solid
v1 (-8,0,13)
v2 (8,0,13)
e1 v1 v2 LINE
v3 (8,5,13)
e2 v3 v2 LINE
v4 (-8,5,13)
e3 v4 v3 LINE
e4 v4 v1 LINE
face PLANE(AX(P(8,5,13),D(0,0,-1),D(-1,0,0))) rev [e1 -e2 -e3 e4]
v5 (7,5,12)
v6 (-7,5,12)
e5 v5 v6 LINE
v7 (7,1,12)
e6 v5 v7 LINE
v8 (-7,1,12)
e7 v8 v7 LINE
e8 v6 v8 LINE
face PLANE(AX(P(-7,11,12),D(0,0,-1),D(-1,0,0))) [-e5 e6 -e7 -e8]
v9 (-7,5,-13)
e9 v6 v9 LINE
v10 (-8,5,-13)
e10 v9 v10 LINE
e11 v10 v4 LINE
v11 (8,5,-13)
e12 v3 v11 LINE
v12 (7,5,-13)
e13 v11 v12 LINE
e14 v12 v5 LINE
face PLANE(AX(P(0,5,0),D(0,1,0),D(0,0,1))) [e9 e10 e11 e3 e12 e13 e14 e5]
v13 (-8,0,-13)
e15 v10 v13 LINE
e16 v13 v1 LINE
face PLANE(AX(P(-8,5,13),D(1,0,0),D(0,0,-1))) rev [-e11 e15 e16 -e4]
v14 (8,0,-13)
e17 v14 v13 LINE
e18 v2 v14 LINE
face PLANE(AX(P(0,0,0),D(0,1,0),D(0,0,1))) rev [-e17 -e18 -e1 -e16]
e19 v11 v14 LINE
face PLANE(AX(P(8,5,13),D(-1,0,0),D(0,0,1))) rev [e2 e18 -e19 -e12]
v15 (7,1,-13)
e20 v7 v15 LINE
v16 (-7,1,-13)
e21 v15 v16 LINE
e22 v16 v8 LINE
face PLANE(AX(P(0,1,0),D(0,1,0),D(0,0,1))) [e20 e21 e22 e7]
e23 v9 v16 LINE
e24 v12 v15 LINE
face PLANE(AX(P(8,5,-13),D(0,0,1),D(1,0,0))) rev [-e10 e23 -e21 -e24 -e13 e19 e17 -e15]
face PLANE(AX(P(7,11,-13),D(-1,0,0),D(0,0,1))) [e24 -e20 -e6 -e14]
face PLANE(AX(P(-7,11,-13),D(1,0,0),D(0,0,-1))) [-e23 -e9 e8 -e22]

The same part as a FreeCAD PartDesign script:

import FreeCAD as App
import Part
import Sketcher
Q = App.Units.Quantity

doc = App.newDocument("Part")
body = doc.addObject("PartDesign::Body", "Body")

sketch1 = body.newObject("Sketcher::SketchObject", "Sketch")
sketch1.AttachmentSupport = (doc.getObject("XZ_Plane"), [""])
sketch1.MapMode = "FlatFace"
sketch1.addGeometry(Part.LineSegment(App.Vector(-8, -13, 0), App.Vector(-8, 13, 0)), False)
sketch1.addGeometry(Part.LineSegment(App.Vector(-8, 13, 0), App.Vector(8, 13, 0)), False)
sketch1.addGeometry(Part.LineSegment(App.Vector(8, 13, 0), App.Vector(8, -13, 0)), False)
sketch1.addGeometry(Part.LineSegment(App.Vector(8, -13, 0), App.Vector(-8, -13, 0)), False)
sketch1.addConstraint(Sketcher.Constraint("Coincident", 0, 2, 1, 1))
sketch1.addConstraint(Sketcher.Constraint("Coincident", 1, 2, 2, 1))
sketch1.addConstraint(Sketcher.Constraint("Coincident", 2, 2, 3, 1))
sketch1.addConstraint(Sketcher.Constraint("Coincident", 3, 2, 0, 1))
sketch1.addConstraint(Sketcher.Constraint("Vertical", 0))
sketch1.addConstraint(Sketcher.Constraint("Horizontal", 1))
sketch1.addConstraint(Sketcher.Constraint("Vertical", 2))
sketch1.addConstraint(Sketcher.Constraint("Horizontal", 3))
sketch1.addConstraint(Sketcher.Constraint("Symmetric", 0, 2, 2, 2, -1, 1))
sketch1.addConstraint(Sketcher.Constraint("DistanceX", 1, 1, 1, 2, Q("16 mm")))
sketch1.addConstraint(Sketcher.Constraint("DistanceY", 0, 1, 0, 2, Q("26 mm")))
pad1 = body.newObject("PartDesign::Pad", "Pad")
pad1.Profile = sketch1
pad1.Length = 5
pad1.Reversed = True

sketch2 = body.newObject("Sketcher::SketchObject", "Sketch001")
sketch2.AttachmentSupport = (doc.getObject("XZ_Plane"), [""])
sketch2.MapMode = "FlatFace"
sketch2.AttachmentOffset = App.Placement(App.Vector(0, 0, -1), App.Rotation())
sketch2.addGeometry(Part.LineSegment(App.Vector(-7, -13, 0), App.Vector(-7, 12, 0)), False)
sketch2.addGeometry(Part.LineSegment(App.Vector(-7, 12, 0), App.Vector(7, 12, 0)), False)
sketch2.addGeometry(Part.LineSegment(App.Vector(7, 12, 0), App.Vector(7, -13, 0)), False)
sketch2.addGeometry(Part.LineSegment(App.Vector(7, -13, 0), App.Vector(-7, -13, 0)), False)
sketch2.addConstraint(Sketcher.Constraint("Coincident", 0, 2, 1, 1))
sketch2.addConstraint(Sketcher.Constraint("Coincident", 1, 2, 2, 1))
sketch2.addConstraint(Sketcher.Constraint("Coincident", 2, 2, 3, 1))
sketch2.addConstraint(Sketcher.Constraint("Coincident", 3, 2, 0, 1))
sketch2.addConstraint(Sketcher.Constraint("Vertical", 0))
sketch2.addConstraint(Sketcher.Constraint("Horizontal", 1))
sketch2.addConstraint(Sketcher.Constraint("Vertical", 2))
sketch2.addConstraint(Sketcher.Constraint("Horizontal", 3))
sketch2.addConstraint(Sketcher.Constraint("DistanceX", 1, 1, 1, 2, Q("14 mm")))
sketch2.addConstraint(Sketcher.Constraint("DistanceY", 0, 1, 0, 2, Q("25 mm")))
sketch2.addConstraint(Sketcher.Constraint("DistanceX", 0, 2, -1, 1, Q("7 mm")))
sketch2.addConstraint(Sketcher.Constraint("DistanceY", -1, 1, 0, 2, Q("12 mm")))
pocket1 = body.newObject("PartDesign::Pocket", "Pocket")
pocket1.Profile = sketch2
pocket1.Length = 10
body2 = doc.addObject("PartDesign::Body", "Body001")

sketch3 = body2.newObject("Sketcher::SketchObject", "Sketch002")
sketch3.AttachmentSupport = (doc.getObject("XZ_Plane001"), [""])
sketch3.MapMode = "FlatFace"
sketch3.AttachmentOffset = App.Placement(App.Vector(0, 0, -5), App.Rotation())
sketch3.addGeometry(Part.LineSegment(App.Vector(-8, -13, 0), App.Vector(-8, 13, 0)), False)
sketch3.addGeometry(Part.LineSegment(App.Vector(-8, 13, 0), App.Vector(8, 13, 0)), False)
sketch3.addGeometry(Part.LineSegment(App.Vector(8, 13, 0), App.Vector(8, -13, 0)), False)
sketch3.addGeometry(Part.LineSegment(App.Vector(8, -13, 0), App.Vector(-8, -13, 0)), False)
sketch3.addConstraint(Sketcher.Constraint("Coincident", 0, 2, 1, 1))
sketch3.addConstraint(Sketcher.Constraint("Coincident", 1, 2, 2, 1))
sketch3.addConstraint(Sketcher.Constraint("Coincident", 2, 2, 3, 1))
sketch3.addConstraint(Sketcher.Constraint("Coincident", 3, 2, 0, 1))
sketch3.addConstraint(Sketcher.Constraint("Vertical", 0))
sketch3.addConstraint(Sketcher.Constraint("Horizontal", 1))
sketch3.addConstraint(Sketcher.Constraint("Vertical", 2))
sketch3.addConstraint(Sketcher.Constraint("Horizontal", 3))
sketch3.addConstraint(Sketcher.Constraint("Symmetric", 0, 2, 2, 2, -1, 1))
sketch3.addConstraint(Sketcher.Constraint("DistanceX", 1, 1, 1, 2, Q("16 mm")))
sketch3.addConstraint(Sketcher.Constraint("DistanceY", 0, 1, 0, 2, Q("26 mm")))
pad2 = body2.newObject("PartDesign::Pad", "Pad001")
pad2.Profile = sketch3
pad2.Length = 1
pad2.Reversed = True

sketch4 = body2.newObject("Sketcher::SketchObject", "Sketch003")
sketch4.AttachmentSupport = (doc.getObject("XZ_Plane001"), [""])
sketch4.MapMode = "FlatFace"
sketch4.AttachmentOffset = App.Placement(App.Vector(0, 0, -6), App.Rotation())
sketch4.addGeometry(Part.LineSegment(App.Vector(-7, -7, 0), App.Vector(-7, 10, 0)), False)
sketch4.addGeometry(Part.LineSegment(App.Vector(-7, 10, 0), App.Vector(7, 10, 0)), False)
sketch4.addGeometry(Part.LineSegment(App.Vector(7, 10, 0), App.Vector(7, -7, 0)), False)
sketch4.addGeometry(Part.LineSegment(App.Vector(7, -7, 0), App.Vector(-7, -7, 0)), False)
sketch4.addConstraint(Sketcher.Constraint("Coincident", 0, 2, 1, 1))
sketch4.addConstraint(Sketcher.Constraint("Coincident", 1, 2, 2, 1))
sketch4.addConstraint(Sketcher.Constraint("Coincident", 2, 2, 3, 1))
sketch4.addConstraint(Sketcher.Constraint("Coincident", 3, 2, 0, 1))
sketch4.addConstraint(Sketcher.Constraint("Vertical", 0))
sketch4.addConstraint(Sketcher.Constraint("Horizontal", 1))
sketch4.addConstraint(Sketcher.Constraint("Vertical", 2))
sketch4.addConstraint(Sketcher.Constraint("Horizontal", 3))
sketch4.addConstraint(Sketcher.Constraint("DistanceX", 1, 1, 1, 2, Q("14 mm")))
sketch4.addConstraint(Sketcher.Constraint("DistanceY", 0, 1, 0, 2, Q("17 mm")))
sketch4.addConstraint(Sketcher.Constraint("DistanceX", 0, 2, -1, 1, Q("7 mm")))
sketch4.addConstraint(Sketcher.Constraint("DistanceY", -1, 1, 0, 2, Q("10 mm")))
pocket2 = body2.newObject("PartDesign::Pocket", "Pocket001")
pocket2.Profile = sketch4
pocket2.Length = 1
pocket2.Reversed = True

sketch5 = body2.newObject("Sketcher::SketchObject", "Sketch004")
sketch5.AttachmentSupport = (doc.getObject("XZ_Plane001"), [""])
sketch5.MapMode = "FlatFace"
sketch5.AttachmentOffset = App.Placement(App.Vector(0, 0, -6), App.Rotation())
sketch5.addGeometry(Part.LineSegment(App.Vector(-8, -13, 0), App.Vector(-8, 13, 0)), False)
sketch5.addGeometry(Part.LineSegment(App.Vector(-8, 13, 0), App.Vector(8, 13, 0)), False)
sketch5.addGeometry(Part.LineSegment(App.Vector(8, 13, 0), App.Vector(8, -13, 0)), False)
sketch5.addGeometry(Part.LineSegment(App.Vector(8, -13, 0), App.Vector(-8, -13, 0)), False)
sketch5.addConstraint(Sketcher.Constraint("Coincident", 0, 2, 1, 1))
sketch5.addConstraint(Sketcher.Constraint("Coincident", 1, 2, 2, 1))
sketch5.addConstraint(Sketcher.Constraint("Coincident", 2, 2, 3, 1))
sketch5.addConstraint(Sketcher.Constraint("Coincident", 3, 2, 0, 1))
sketch5.addConstraint(Sketcher.Constraint("Vertical", 0))
sketch5.addConstraint(Sketcher.Constraint("Horizontal", 1))
sketch5.addConstraint(Sketcher.Constraint("Vertical", 2))
sketch5.addConstraint(Sketcher.Constraint("Horizontal", 3))
sketch5.addConstraint(Sketcher.Constraint("Symmetric", 0, 2, 2, 2, -1, 1))
sketch5.addConstraint(Sketcher.Constraint("DistanceX", 1, 1, 1, 2, Q("16 mm")))
sketch5.addConstraint(Sketcher.Constraint("DistanceY", 0, 1, 0, 2, Q("26 mm")))
pocket3 = body2.newObject("PartDesign::Pocket", "Pocket002")
pocket3.Profile = sketch5
pocket3.Length = 1
pocket3.Reversed = True

doc.recompute()
